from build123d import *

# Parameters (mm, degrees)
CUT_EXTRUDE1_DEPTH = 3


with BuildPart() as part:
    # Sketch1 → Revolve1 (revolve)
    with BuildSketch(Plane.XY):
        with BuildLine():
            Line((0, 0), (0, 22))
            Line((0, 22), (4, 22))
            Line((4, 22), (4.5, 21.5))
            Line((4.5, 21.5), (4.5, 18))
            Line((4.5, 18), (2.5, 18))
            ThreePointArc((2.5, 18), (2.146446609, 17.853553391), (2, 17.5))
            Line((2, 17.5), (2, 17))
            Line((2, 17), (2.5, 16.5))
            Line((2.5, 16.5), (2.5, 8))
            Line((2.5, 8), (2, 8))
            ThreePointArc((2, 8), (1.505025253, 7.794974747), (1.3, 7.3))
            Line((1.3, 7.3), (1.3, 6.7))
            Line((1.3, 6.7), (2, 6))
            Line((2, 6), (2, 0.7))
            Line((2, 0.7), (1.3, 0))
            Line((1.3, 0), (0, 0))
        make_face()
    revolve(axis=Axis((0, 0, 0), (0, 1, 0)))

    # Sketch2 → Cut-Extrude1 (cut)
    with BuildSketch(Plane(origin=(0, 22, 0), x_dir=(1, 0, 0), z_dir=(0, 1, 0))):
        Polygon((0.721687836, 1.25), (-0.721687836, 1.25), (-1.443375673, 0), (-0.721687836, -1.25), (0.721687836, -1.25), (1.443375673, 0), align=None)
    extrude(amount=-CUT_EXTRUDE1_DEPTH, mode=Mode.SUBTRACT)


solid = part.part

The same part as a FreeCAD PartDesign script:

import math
import FreeCAD as App
import Part
import Sketcher

V = App.Vector
Q = App.Units.Quantity


def add_polygon(sketch, points):
    """Adds a closed chain of lines whose ends are joined by coincident constraints."""
    first, n = sketch.GeometryCount, len(points)
    for a, b in zip(points, points[1:] + points[:1]):
        sketch.addGeometry(Part.LineSegment(App.Vector(*a, 0), App.Vector(*b, 0)), False)
    for i in range(n):
        sketch.addConstraint(Sketcher.Constraint("Coincident", first + i, 2, first + (i + 1) % n, 1))

doc = App.newDocument("Part")
body = doc.addObject("PartDesign::Body", "Body")

# Sketch on XY plane
sketch1 = doc.addObject("Sketcher::SketchObject", "Sketch")
body.addObject(sketch1)
sketch1.AttachmentSupport = (doc.XY_Plane, [""])
sketch1.MapMode = "FlatFace"
sketch1.addGeometry(Part.LineSegment(V(0, 22, 0), V(0, 0, 0)), False)
sketch1.addGeometry(Part.LineSegment(V(0, 0, 0), V(1.3, 0, 0)), False)
sketch1.addGeometry(Part.LineSegment(V(1.3, 0, 0), V(2, 0.7, 0)), False)
sketch1.addGeometry(Part.LineSegment(V(2, 0.7, 0), V(2, 6, 0)), False)
sketch1.addGeometry(Part.LineSegment(V(2, 6, 0), V(1.3, 6.7, 0)), False)
sketch1.addGeometry(Part.LineSegment(V(1.3, 6.7, 0), V(1.3, 7.3, 0)), False)
sketch1.addGeometry(Part.ArcOfCircle(Part.Circle(V(2, 7.3, 0), V(0, 0, 1), 0.7), math.radians(90), math.radians(180)), False)
sketch1.addGeometry(Part.LineSegment(V(2, 8, 0), V(2.5, 8, 0)), False)
sketch1.addGeometry(Part.LineSegment(V(2.5, 8, 0), V(2.5, 16.5, 0)), False)
sketch1.addGeometry(Part.LineSegment(V(2.5, 16.5, 0), V(2, 17, 0)), False)
sketch1.addGeometry(Part.LineSegment(V(2, 17, 0), V(2, 17.5, 0)), False)
sketch1.addGeometry(Part.ArcOfCircle(Part.Circle(V(2.5, 17.5, 0), V(0, 0, 1), 0.5), math.radians(90), math.radians(180)), False)
sketch1.addGeometry(Part.LineSegment(V(2.5, 18, 0), V(4.5, 18, 0)), False)
sketch1.addGeometry(Part.LineSegment(V(4.5, 18, 0), V(4.5, 21.5, 0)), False)
sketch1.addGeometry(Part.LineSegment(V(4.5, 21.5, 0), V(4, 22, 0)), False)
sketch1.addGeometry(Part.LineSegment(V(4, 22, 0), V(0, 22, 0)), False)
sketch1.addConstraint(Sketcher.Constraint("Coincident", 0, 2, 1, 1))
sketch1.addConstraint(Sketcher.Constraint("Coincident", 1, 2, 2, 1))
sketch1.addConstraint(Sketcher.Constraint("Coincident", 2, 2, 3, 1))
sketch1.addConstraint(Sketcher.Constraint("Coincident", 3, 2, 4, 1))
sketch1.addConstraint(Sketcher.Constraint("Coincident", 4, 2, 5, 1))
sketch1.addConstraint(Sketcher.Constraint("Tangent", 5, 2, 6, 2))
sketch1.addConstraint(Sketcher.Constraint("Tangent", 6, 1, 7, 1))
sketch1.addConstraint(Sketcher.Constraint("Coincident", 7, 2, 8, 1))
sketch1.addConstraint(Sketcher.Constraint("Coincident", 8, 2, 9, 1))
sketch1.addConstraint(Sketcher.Constraint("Coincident", 9, 2, 10, 1))
sketch1.addConstraint(Sketcher.Constraint("Tangent", 10, 2, 11, 2))
sketch1.addConstraint(Sketcher.Constraint("Tangent", 11, 1, 12, 1))
sketch1.addConstraint(Sketcher.Constraint("Coincident", 12, 2, 13, 1))
sketch1.addConstraint(Sketcher.Constraint("Coincident", 13, 2, 14, 1))
sketch1.addConstraint(Sketcher.Constraint("Coincident", 14, 2, 15, 1))
sketch1.addConstraint(Sketcher.Constraint("Coincident", 15, 2, 0, 1))
sketch1.addConstraint(Sketcher.Constraint("Vertical", 0))
sketch1.addConstraint(Sketcher.Constraint("Horizontal", 1))
sketch1.addConstraint(Sketcher.Constraint("Vertical", 3))
sketch1.addConstraint(Sketcher.Constraint("Vertical", 5))
sketch1.addConstraint(Sketcher.Constraint("Horizontal", 7))
sketch1.addConstraint(Sketcher.Constraint("Vertical", 8))
sketch1.addConstraint(Sketcher.Constraint("Vertical", 10))
sketch1.addConstraint(Sketcher.Constraint("Horizontal", 12))
sketch1.addConstraint(Sketcher.Constraint("Vertical", 13))
sketch1.addConstraint(Sketcher.Constraint("Horizontal", 15))
sketch1.addConstraint(Sketcher.Constraint("Coincident", 0, 2, -1, 1))
sketch1.addConstraint(Sketcher.Constraint("Perpendicular", 2, 4))
sketch1.addConstraint(Sketcher.Constraint("Parallel", 4, 9))
sketch1.addConstraint(Sketcher.Constraint("Parallel", 9, 14))
sketch1.addConstraint(Sketcher.Constraint("Vertical", 6, 3, 2, 2))
sketch1.addConstraint(Sketcher.Constraint("Vertical", 1, 2, 4, 2))
sketch1.addConstraint(Sketcher.Constraint("Vertical", 11, 3, 7, 2))
sketch1.addConstraint(Sketcher.Constraint("Vertical", 6, 1, 9, 2))
sketch1.addConstraint(Sketcher.Constraint("Equal", 7, 10))
sketch1.addConstraint(Sketcher.Constraint("Equal", 2, 4))
sketch1.addConstraint(Sketcher.Constraint("Equal", 9, 14))
sketch1.addConstraint(Sketcher.Constraint("Radius", 6, Q("0.7 mm")))
sketch1.addConstraint(Sketcher.Constraint("Radius", 11, Q("0.5 mm")))
sketch1.addConstraint(Sketcher.Constraint("DistanceX", 12, 1, 12, 2, Q("2 mm")))
sketch1.addConstraint(Sketcher.Constraint("DistanceX", 15, 2, 15, 1, Q("4 mm")))
sketch1.addConstraint(Sketcher.Constraint("DistanceY", 0, 2, 0, 1, Q("22 mm")))
sketch1.addConstraint(Sketcher.Constraint("DistanceY", 3, 1, 3, 2, Q("5.3 mm")))
sketch1.addConstraint(Sketcher.Constraint("DistanceY", 5, 1, 5, 2, Q("0.6 mm")))
sketch1.addConstraint(Sketcher.Constraint("DistanceY", 8, 1, 8, 2, Q("8.5 mm")))
revolution = doc.addObject("PartDesign::Revolution", "Revolution")
body.addObject(revolution)
revolution.Profile = sketch1
revolution.ReferenceAxis = (sketch1, ["V_Axis"])
revolution.Angle = 360

# Sketch on XZ plane
sketch2 = doc.addObject("Sketcher::SketchObject", "Sketch001")
body.addObject(sketch2)
sketch2.AttachmentSupport = (doc.XZ_Plane, [""])
sketch2.MapMode = "FlatFace"
sketch2.AttachmentOffset = App.Placement(V(0, 0, -22), App.Rotation())
add_polygon(sketch2, [(0.7, -1.2), (-0.7, -1.2), (-1.4, 0), (-0.7, 1.2), (0.7, 1.2), (1.4, 0)])  # lines 0-5
sketch2.addConstraint(Sketcher.Constraint("Horizontal", 0))
sketch2.addConstraint(Sketcher.Constraint("Horizontal", 3))
sketch2.addConstraint(Sketcher.Constraint("Symmetric", 0, 2, 3, 2, -1, 1))
sketch2.addConstraint(Sketcher.Constraint("Symmetric", 1, 2, 4, 2, -1, 1))
sketch2.addConstraint(Sketcher.Constraint("PointOnObject", 1, 2, -1))
sketch2.addConstraint(Sketcher.Constraint("Parallel", 2, 5))
sketch2.addConstraint(Sketcher.Constraint("Vertical", 0, 2, 2, 2))
sketch2.addConstraint(Sketcher.Constraint("Angle", 1, Q("120 deg")))
sketch2.addConstraint(Sketcher.Constraint("DistanceY", 0, 2, 2, 2, Q("2.5 mm")))
sketch2.addConstraint(Sketcher.Constraint("DistanceX", 0, 2, 0, 1, Q("1.443376 mm")))
pocket1 = doc.addObject("PartDesign::Pocket", "Pocket")
body.addObject(pocket1)
pocket1.Profile = sketch2
pocket1.Length = 3
pocket1.Reversed = True

doc.recompute()
